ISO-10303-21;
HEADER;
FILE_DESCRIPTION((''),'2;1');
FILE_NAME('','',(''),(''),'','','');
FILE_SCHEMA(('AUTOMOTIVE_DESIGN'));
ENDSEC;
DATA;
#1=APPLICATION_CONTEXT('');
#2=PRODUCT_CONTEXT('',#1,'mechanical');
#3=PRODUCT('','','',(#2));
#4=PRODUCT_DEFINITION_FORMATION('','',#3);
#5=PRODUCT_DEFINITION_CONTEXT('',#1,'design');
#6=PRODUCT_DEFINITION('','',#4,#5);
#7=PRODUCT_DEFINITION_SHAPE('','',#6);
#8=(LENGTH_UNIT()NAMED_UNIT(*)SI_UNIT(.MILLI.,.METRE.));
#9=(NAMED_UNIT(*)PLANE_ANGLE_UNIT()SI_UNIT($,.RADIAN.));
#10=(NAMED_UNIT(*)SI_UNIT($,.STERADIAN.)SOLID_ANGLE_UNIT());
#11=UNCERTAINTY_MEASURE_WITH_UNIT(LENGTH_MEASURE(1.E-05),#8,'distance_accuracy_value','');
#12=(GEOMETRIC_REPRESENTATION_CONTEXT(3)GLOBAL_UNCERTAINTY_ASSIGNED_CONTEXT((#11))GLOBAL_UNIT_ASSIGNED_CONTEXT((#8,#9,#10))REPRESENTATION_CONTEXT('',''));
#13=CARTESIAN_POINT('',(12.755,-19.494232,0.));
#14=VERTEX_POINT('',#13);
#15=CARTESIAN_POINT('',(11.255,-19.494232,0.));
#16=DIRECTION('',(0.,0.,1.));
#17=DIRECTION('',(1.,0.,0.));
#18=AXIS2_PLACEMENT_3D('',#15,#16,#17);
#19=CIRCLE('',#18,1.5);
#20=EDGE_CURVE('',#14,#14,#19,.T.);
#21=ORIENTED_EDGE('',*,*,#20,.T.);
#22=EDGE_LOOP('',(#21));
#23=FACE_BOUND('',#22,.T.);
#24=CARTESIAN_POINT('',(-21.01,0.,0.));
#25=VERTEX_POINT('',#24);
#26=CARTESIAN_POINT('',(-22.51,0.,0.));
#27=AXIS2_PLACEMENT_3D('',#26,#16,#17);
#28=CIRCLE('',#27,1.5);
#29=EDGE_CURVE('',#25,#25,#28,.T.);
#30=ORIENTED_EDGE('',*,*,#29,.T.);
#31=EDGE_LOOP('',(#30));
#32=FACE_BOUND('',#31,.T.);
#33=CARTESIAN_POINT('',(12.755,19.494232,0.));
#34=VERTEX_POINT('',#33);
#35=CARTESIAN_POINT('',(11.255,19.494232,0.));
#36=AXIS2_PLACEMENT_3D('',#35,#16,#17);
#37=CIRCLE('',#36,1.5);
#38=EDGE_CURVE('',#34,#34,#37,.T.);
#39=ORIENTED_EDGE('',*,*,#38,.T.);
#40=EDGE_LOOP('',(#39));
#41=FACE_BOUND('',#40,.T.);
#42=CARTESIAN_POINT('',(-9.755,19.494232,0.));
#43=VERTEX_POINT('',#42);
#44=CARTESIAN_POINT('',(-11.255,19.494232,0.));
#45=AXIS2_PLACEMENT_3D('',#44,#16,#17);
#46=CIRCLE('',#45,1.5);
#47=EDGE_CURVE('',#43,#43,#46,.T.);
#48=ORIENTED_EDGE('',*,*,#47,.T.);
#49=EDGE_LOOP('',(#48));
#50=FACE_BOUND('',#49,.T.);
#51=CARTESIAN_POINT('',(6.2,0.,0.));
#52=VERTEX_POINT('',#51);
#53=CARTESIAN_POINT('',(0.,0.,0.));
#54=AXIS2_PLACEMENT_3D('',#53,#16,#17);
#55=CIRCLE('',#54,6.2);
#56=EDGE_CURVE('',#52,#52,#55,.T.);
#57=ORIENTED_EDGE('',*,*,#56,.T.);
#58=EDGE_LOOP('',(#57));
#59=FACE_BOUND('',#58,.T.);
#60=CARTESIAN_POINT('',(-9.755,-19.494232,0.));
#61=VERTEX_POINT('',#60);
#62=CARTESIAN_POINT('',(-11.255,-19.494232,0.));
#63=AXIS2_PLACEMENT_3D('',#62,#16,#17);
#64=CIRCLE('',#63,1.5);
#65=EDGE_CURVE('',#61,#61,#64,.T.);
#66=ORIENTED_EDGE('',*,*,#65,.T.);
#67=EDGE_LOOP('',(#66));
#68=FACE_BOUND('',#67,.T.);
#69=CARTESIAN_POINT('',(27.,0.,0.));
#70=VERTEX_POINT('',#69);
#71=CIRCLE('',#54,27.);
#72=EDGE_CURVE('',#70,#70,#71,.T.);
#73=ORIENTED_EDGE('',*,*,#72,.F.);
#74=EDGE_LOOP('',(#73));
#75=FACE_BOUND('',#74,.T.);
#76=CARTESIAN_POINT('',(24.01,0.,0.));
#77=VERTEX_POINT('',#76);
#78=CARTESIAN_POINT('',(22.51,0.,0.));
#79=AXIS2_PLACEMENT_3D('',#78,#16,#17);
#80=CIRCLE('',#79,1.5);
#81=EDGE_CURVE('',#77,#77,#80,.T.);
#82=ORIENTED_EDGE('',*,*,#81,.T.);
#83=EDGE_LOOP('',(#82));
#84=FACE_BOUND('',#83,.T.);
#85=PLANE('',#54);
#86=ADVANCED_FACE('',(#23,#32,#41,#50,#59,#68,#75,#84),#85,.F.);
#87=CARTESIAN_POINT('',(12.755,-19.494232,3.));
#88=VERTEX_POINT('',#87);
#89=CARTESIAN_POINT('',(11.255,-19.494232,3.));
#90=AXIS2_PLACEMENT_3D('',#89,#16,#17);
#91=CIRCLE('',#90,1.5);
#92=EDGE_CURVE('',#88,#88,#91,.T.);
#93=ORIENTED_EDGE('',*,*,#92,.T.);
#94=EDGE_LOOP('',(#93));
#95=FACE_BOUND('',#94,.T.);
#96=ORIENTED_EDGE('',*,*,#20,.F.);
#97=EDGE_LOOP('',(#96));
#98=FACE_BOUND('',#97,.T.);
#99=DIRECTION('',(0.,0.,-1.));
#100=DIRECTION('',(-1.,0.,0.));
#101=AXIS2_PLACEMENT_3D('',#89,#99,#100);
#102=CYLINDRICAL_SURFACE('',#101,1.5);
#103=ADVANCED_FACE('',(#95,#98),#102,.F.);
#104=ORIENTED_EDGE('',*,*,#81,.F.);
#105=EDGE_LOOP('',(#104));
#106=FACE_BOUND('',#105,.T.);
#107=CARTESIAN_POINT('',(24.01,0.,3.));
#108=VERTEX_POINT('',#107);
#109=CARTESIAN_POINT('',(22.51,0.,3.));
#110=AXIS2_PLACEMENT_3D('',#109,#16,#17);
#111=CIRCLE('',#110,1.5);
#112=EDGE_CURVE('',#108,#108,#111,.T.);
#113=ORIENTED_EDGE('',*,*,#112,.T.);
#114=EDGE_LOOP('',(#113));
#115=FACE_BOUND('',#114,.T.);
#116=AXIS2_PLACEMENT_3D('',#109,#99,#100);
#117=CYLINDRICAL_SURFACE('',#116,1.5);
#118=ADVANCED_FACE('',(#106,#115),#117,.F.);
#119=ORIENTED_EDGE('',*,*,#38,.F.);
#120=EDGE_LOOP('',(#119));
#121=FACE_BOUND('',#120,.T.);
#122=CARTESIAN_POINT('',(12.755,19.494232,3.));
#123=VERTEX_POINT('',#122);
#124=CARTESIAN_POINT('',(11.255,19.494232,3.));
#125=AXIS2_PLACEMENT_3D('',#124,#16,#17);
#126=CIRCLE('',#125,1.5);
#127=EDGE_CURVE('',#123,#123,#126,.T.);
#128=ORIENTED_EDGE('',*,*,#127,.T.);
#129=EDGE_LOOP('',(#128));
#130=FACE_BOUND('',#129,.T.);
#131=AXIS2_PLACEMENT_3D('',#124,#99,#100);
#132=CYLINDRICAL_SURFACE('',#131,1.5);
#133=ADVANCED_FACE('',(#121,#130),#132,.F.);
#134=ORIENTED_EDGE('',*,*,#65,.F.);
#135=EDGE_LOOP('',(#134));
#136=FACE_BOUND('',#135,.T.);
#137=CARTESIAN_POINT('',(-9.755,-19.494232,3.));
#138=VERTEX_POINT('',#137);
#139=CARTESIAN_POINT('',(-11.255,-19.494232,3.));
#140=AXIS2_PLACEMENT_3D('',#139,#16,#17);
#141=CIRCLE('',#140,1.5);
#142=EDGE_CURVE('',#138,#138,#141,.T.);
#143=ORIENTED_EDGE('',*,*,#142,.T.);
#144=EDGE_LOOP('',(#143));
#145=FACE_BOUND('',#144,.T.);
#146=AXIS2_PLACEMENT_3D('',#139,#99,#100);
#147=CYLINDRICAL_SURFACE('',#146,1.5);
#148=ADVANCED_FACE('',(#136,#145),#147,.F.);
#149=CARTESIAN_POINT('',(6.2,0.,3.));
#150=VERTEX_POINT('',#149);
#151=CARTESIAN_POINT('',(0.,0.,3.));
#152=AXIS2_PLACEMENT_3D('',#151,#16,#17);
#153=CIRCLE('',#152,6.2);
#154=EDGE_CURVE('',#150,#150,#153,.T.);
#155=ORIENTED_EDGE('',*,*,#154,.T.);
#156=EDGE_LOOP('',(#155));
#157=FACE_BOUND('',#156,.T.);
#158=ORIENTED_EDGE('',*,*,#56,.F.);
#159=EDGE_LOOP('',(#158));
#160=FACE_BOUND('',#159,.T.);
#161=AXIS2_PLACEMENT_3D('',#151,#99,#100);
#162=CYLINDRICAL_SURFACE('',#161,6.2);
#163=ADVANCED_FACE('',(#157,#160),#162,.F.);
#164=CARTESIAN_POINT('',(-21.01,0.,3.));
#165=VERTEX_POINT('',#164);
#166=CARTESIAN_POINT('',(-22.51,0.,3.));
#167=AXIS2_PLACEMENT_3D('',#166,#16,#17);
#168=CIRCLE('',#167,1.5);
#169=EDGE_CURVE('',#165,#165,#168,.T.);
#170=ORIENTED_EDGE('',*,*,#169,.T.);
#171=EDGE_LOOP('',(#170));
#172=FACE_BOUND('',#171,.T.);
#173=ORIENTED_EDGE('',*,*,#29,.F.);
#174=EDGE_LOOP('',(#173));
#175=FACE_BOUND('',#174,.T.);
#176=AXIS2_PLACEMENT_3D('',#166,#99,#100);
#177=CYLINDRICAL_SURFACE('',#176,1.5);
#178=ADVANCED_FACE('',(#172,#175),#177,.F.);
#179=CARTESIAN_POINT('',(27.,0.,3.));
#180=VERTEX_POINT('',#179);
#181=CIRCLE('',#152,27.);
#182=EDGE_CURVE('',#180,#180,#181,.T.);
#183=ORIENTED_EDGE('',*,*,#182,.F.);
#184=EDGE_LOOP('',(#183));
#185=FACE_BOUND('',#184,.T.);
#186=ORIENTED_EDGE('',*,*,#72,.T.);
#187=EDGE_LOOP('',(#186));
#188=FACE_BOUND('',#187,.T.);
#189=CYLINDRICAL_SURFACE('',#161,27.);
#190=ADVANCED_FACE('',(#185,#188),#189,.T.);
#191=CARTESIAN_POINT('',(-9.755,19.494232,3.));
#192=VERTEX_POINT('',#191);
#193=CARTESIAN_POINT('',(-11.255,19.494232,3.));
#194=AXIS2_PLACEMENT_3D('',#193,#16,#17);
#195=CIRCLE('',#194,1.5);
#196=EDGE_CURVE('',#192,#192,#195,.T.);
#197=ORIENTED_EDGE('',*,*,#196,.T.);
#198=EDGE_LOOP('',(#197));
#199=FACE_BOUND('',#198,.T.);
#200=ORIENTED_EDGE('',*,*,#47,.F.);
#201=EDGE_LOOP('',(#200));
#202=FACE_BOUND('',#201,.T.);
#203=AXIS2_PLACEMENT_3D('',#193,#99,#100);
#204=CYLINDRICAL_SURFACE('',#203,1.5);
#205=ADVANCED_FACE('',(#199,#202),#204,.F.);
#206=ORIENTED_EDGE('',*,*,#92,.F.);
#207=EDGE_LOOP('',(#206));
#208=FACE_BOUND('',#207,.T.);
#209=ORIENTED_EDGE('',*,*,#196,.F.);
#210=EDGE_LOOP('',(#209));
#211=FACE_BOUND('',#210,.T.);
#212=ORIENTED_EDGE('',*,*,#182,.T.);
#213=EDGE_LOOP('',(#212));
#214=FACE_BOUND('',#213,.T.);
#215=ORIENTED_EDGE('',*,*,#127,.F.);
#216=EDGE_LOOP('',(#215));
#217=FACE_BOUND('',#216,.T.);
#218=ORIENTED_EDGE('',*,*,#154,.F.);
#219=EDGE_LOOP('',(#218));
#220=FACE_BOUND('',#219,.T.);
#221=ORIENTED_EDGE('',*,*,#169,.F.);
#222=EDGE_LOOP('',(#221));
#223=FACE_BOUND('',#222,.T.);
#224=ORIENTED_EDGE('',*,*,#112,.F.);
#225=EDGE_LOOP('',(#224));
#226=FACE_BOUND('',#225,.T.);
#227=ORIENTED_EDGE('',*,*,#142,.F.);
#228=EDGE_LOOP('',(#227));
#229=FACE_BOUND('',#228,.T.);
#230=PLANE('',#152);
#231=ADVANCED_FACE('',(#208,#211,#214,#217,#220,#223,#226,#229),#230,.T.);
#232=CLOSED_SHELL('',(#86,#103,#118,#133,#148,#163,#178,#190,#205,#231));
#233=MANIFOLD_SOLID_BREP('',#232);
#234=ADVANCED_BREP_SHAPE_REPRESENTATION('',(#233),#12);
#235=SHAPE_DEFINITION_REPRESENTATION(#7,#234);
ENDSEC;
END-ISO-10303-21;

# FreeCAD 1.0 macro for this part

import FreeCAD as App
import Part
import Sketcher
from FreeCAD import Vector

doc = App.newDocument("Part")
body = doc.addObject("PartDesign::Body", "Body")

sketch1 = body.newObject("Sketcher::SketchObject", "Sketch")
sketch1.AttachmentSupport = (doc.getObject("XY_Plane"), [""])
sketch1.MapMode = "FlatFace"
sketch1.addGeometry([
    Part.Circle(Vector(0, 0, 0), Vector(0, 0, 1), 27),
    Part.Circle(Vector(-11.3, -19.5, 0), Vector(0, 0, 1), 1.5),
    Part.Circle(Vector(11.3, -19.5, 0), Vector(0, 0, 1), 1.5),
    Part.Circle(Vector(-22.5, 0, 0), Vector(0, 0, 1), 1.5),
    Part.Circle(Vector(-11.3, 19.5, 0), Vector(0, 0, 1), 1.5),
    Part.Circle(Vector(0, 0, 0), Vector(0, 0, 1), 6.2),
    Part.Circle(Vector(22.5, 0, 0), Vector(0, 0, 1), 1.5),
    Part.Circle(Vector(11.3, 19.5, 0), Vector(0, 0, 1), 1.5),
], False)
sketch1.addConstraint([
    Sketcher.Constraint("Coincident", 0, 3, -1, 1),
    Sketcher.Constraint("Coincident", 5, 3, -1, 1),
    Sketcher.Constraint("Equal", 1, 2),
    Sketcher.Constraint("Equal", 2, 3),
    Sketcher.Constraint("Equal", 3, 4),
    Sketcher.Constraint("Equal", 4, 6),
    Sketcher.Constraint("Equal", 6, 7),
    Sketcher.Constraint("Symmetric", 2, 3, 4, 3, -1, 1),
    Sketcher.Constraint("Symmetric", 3, 3, 6, 3, -1, 1),
    Sketcher.Constraint("Symmetric", 1, 3, 7, 3, -1, 1),
    Sketcher.Constraint("Symmetric", 1, 3, 2, 3, -2),
    Sketcher.Constraint("PointOnObject", 3, 3, -1),
    Sketcher.Constraint("Diameter", 0, 54.0),
    Sketcher.Constraint("Diameter", 1, 3.0),
    Sketcher.Constraint("Diameter", 5, 12.4),
    Sketcher.Constraint("DistanceX", 3, 3, -1, 1, 22.51),
    Sketcher.Constraint("DistanceX", 1, 3, 2, 3, 22.51),
    Sketcher.Constraint("DistanceY", 1, 3, -1, 1, 19.494232),
])
pad1 = body.newObject("PartDesign::Pad", "Pad")
pad1.Profile = sketch1
pad1.Length = 3

doc.recompute()
